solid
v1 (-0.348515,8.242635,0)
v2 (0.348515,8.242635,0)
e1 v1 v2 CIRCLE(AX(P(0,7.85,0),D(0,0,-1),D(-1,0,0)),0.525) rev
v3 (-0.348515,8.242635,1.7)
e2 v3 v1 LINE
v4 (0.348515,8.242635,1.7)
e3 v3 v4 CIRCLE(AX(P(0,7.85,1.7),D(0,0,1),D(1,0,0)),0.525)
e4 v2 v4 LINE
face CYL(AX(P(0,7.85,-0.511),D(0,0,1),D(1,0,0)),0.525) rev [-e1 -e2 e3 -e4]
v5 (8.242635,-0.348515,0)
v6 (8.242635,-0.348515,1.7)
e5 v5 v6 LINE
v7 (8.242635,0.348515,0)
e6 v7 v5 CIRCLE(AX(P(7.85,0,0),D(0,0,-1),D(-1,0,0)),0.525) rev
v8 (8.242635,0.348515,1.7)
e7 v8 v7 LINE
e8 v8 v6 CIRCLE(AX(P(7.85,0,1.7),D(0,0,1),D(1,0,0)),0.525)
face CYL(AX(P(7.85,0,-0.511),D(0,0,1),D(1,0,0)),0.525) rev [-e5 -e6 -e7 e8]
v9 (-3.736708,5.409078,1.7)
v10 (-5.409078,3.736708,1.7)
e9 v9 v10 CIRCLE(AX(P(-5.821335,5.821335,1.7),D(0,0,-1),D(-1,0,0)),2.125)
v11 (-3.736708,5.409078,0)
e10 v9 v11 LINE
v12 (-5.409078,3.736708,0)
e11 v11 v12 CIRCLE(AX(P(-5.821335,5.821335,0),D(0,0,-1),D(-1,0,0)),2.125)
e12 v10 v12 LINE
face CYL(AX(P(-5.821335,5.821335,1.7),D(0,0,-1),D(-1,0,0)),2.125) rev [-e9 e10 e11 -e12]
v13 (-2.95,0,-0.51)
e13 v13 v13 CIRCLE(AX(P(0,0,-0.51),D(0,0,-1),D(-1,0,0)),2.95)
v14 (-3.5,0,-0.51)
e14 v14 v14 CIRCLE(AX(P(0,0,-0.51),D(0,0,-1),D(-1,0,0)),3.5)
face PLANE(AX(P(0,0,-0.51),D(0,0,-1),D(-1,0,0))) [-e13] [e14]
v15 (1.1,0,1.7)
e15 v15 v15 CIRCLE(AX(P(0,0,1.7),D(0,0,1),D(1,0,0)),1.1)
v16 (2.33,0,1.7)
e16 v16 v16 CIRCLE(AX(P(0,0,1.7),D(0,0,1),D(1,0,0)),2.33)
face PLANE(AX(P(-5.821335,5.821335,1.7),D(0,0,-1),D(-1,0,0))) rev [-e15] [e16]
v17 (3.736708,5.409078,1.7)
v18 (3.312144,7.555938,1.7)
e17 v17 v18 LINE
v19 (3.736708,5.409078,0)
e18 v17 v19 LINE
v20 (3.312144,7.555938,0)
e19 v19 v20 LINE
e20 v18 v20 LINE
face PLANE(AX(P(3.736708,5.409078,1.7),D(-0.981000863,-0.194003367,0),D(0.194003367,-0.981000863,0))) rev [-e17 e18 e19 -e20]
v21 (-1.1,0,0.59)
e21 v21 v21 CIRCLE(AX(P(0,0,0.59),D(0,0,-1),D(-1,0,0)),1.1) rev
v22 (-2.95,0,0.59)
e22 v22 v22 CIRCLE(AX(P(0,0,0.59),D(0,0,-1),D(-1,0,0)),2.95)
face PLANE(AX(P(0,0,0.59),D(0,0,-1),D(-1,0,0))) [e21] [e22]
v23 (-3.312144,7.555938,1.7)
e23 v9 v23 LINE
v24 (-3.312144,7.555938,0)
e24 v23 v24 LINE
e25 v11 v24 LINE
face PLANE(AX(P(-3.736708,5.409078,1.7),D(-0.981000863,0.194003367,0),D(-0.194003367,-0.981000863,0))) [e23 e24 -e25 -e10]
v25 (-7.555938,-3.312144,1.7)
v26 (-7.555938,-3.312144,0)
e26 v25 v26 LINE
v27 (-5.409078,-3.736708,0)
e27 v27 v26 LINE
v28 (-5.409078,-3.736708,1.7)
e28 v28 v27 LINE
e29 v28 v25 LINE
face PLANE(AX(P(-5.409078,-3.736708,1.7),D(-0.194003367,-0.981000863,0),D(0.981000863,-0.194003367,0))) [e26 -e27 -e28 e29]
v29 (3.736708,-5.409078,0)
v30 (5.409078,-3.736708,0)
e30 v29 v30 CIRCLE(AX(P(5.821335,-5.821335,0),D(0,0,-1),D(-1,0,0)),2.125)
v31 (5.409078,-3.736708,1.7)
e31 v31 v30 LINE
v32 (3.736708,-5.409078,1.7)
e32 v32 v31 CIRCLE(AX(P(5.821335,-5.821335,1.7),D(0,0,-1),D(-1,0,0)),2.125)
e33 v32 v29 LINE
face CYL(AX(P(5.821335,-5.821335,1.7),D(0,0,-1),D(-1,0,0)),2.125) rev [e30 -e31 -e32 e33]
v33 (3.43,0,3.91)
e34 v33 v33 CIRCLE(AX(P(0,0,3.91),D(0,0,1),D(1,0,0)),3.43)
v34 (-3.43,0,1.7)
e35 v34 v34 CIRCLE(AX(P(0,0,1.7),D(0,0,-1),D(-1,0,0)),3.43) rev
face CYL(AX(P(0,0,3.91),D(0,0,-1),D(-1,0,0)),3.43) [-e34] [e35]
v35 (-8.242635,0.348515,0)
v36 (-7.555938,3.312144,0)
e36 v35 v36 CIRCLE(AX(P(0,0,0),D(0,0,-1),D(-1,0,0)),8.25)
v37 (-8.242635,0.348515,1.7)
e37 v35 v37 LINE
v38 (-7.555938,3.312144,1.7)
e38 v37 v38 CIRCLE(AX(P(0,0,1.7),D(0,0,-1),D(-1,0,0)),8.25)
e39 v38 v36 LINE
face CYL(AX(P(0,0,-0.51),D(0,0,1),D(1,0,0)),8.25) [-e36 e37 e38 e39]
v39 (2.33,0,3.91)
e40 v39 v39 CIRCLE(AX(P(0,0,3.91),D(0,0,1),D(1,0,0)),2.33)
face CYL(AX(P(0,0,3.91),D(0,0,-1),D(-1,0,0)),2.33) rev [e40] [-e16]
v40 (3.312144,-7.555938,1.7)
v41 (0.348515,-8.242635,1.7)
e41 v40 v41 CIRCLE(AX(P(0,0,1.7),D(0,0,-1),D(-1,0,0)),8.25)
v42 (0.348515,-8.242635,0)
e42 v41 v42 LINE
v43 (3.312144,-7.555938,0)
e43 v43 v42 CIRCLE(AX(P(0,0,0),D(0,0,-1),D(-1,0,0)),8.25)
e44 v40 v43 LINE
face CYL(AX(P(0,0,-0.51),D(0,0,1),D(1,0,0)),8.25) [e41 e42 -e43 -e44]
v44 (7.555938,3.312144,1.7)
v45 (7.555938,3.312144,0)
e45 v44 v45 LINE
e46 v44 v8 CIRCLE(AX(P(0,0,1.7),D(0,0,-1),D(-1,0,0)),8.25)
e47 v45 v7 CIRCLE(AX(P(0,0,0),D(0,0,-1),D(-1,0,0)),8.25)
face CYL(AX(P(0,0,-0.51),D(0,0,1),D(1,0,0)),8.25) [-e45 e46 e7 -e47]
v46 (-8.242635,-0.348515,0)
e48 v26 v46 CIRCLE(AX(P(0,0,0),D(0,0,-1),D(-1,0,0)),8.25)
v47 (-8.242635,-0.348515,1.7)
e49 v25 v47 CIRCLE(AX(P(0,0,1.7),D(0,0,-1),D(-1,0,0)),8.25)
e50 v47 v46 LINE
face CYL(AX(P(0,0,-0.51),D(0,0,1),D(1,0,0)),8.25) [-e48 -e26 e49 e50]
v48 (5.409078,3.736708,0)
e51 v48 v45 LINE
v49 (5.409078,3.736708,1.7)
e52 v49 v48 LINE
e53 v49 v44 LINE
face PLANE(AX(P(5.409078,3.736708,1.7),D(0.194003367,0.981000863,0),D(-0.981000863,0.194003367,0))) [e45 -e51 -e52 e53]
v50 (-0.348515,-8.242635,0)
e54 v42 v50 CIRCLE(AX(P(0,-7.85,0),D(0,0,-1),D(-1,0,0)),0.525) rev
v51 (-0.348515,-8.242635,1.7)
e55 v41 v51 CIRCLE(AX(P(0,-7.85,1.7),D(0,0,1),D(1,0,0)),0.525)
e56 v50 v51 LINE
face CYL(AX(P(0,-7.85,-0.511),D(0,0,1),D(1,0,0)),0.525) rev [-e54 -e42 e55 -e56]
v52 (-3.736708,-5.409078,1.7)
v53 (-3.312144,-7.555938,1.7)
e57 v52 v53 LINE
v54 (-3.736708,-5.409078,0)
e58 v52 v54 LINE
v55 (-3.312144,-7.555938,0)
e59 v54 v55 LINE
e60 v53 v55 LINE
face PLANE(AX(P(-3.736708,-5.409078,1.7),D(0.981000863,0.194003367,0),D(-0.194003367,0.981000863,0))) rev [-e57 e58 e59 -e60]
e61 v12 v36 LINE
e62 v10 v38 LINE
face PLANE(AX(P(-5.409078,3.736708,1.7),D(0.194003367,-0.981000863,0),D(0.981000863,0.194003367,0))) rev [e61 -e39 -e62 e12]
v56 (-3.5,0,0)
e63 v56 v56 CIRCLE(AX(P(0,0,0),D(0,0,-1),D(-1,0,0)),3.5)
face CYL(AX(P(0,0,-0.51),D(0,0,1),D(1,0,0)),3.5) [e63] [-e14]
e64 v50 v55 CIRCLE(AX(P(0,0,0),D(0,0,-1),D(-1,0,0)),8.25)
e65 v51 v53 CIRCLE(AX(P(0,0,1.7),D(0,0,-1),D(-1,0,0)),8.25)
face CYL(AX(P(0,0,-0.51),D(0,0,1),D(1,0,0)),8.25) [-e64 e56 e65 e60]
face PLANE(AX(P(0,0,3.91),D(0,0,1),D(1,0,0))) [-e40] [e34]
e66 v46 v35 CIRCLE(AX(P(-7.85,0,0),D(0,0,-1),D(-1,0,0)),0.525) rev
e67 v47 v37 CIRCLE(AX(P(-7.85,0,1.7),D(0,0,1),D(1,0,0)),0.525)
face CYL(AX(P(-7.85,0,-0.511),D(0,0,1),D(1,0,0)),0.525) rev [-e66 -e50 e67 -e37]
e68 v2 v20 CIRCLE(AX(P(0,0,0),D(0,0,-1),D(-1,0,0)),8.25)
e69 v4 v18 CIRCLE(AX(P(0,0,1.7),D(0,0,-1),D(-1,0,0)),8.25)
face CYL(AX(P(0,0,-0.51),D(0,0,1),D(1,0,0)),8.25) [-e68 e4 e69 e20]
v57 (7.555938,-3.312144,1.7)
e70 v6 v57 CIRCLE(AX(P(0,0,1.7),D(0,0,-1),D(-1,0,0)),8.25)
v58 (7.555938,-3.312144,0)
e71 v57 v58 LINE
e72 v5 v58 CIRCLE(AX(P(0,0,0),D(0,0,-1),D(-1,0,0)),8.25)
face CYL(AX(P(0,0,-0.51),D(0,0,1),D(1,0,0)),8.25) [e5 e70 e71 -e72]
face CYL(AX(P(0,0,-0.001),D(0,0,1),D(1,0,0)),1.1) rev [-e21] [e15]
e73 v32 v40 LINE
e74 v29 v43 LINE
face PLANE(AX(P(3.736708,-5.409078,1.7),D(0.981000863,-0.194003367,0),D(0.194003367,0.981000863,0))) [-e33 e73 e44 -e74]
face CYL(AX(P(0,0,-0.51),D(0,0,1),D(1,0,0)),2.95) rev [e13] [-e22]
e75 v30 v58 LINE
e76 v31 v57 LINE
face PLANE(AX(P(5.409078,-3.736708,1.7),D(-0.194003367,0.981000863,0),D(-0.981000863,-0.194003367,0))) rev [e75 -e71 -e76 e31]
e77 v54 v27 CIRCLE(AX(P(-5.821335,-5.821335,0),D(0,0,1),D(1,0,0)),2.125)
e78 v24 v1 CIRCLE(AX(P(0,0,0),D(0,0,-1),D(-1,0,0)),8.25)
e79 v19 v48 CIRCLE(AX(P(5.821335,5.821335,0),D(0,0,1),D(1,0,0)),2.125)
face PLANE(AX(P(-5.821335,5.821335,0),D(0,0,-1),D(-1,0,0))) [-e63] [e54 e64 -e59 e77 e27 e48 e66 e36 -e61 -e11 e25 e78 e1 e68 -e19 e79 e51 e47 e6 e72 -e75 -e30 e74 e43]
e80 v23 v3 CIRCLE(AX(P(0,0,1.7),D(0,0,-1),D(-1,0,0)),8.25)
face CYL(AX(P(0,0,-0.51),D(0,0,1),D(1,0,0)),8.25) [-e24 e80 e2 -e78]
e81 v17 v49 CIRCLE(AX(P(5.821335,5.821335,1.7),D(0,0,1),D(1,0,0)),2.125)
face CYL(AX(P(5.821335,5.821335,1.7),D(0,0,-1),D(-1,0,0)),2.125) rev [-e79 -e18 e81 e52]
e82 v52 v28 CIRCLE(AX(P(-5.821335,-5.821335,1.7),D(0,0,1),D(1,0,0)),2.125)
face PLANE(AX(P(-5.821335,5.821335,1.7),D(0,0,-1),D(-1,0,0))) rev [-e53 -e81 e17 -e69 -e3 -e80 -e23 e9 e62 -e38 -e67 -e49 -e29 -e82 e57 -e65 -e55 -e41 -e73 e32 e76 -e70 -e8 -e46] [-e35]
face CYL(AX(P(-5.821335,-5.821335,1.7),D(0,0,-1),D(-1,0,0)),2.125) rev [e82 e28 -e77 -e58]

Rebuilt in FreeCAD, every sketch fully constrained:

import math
import FreeCAD as App
import Part
import Sketcher
Q = App.Units.Quantity

doc = App.newDocument("Part")
body = doc.addObject("PartDesign::Body", "Body")

sketch1 = doc.addObject("Sketcher::SketchObject", "Sketch")
body.addObject(sketch1)
sketch1.AttachmentSupport = (doc.XY_Plane, [""])
sketch1.MapMode = "FlatFace"
sketch1.addGeometry([
    Part.LineSegment(App.Vector(13.762286, 2.084772, 0), App.Vector(5.409078, 3.736708, 0)),
    Part.ArcOfCircle(Part.Circle(App.Vector(5.821335, 5.821335, 0), App.Vector(0, 0, 1), 2.125), math.radians(-168.813491), math.radians(-101.186509)),
    Part.LineSegment(App.Vector(3.736708, 5.409078, 0), App.Vector(2.084772, 13.762286, 0)),
    Part.ArcOfCircle(Part.Circle(App.Vector(0, 13.35, 0), App.Vector(0, 0, 1), 2.125148), math.radians(11.186509), math.radians(168.813491)),
    Part.LineSegment(App.Vector(-2.084772, 13.762286, 0), App.Vector(-3.736708, 5.409078, 0)),
    Part.ArcOfCircle(Part.Circle(App.Vector(-5.821335, 5.821335, 0), App.Vector(0, 0, 1), 2.125), math.radians(-78.813491), math.radians(-11.186509)),
    Part.LineSegment(App.Vector(-5.409078, 3.736708, 0), App.Vector(-13.762286, 2.084772, 0)),
    Part.ArcOfCircle(Part.Circle(App.Vector(-13.35, 0, 0), App.Vector(0, 0, 1), 2.125148), math.radians(101.186509), math.radians(258.813491)),
    Part.LineSegment(App.Vector(-13.762286, -2.084772, 0), App.Vector(-5.409078, -3.736708, 0)),
    Part.ArcOfCircle(Part.Circle(App.Vector(-5.821335, -5.821335, 0), App.Vector(0, 0, 1), 2.125), math.radians(11.186509), math.radians(78.813491)),
    Part.LineSegment(App.Vector(-3.736708, -5.409078, 0), App.Vector(-2.084772, -13.762286, 0)),
    Part.ArcOfCircle(Part.Circle(App.Vector(0, -13.35, 0), App.Vector(0, 0, 1), 2.125148), math.radians(-168.813491), math.radians(-11.186509)),
    Part.LineSegment(App.Vector(2.084772, -13.762286, 0), App.Vector(3.736708, -5.409078, 0)),
    Part.ArcOfCircle(Part.Circle(App.Vector(5.821335, -5.821335, 0), App.Vector(0, 0, 1), 2.125), math.radians(101.186509), math.radians(168.813491)),
    Part.LineSegment(App.Vector(5.409078, -3.736708, 0), App.Vector(13.762286, -2.084772, 0)),
    Part.ArcOfCircle(Part.Circle(App.Vector(13.35, 0, 0), App.Vector(0, 0, 1), 2.125148), math.radians(-78.813491), math.radians(78.813491)),
], False)
sketch1.addConstraint([
    Sketcher.Constraint("Tangent", 0, 2, 1, 2),
    Sketcher.Constraint("Tangent", 1, 1, 2, 1),
    Sketcher.Constraint("Tangent", 2, 2, 3, 1),
    Sketcher.Constraint("Tangent", 3, 2, 4, 1),
    Sketcher.Constraint("Tangent", 4, 2, 5, 2),
    Sketcher.Constraint("Tangent", 5, 1, 6, 1),
    Sketcher.Constraint("Tangent", 6, 2, 7, 1),
    Sketcher.Constraint("Tangent", 7, 2, 8, 1),
    Sketcher.Constraint("Tangent", 8, 2, 9, 2),
    Sketcher.Constraint("Tangent", 9, 1, 10, 1),
    Sketcher.Constraint("Tangent", 10, 2, 11, 1),
    Sketcher.Constraint("Tangent", 11, 2, 12, 1),
    Sketcher.Constraint("Tangent", 12, 2, 13, 2),
    Sketcher.Constraint("Tangent", 13, 1, 14, 1),
    Sketcher.Constraint("Tangent", 14, 2, 15, 1),
    Sketcher.Constraint("Tangent", 15, 2, 0, 1),
    Sketcher.Constraint("Equal", 1, 5),
    Sketcher.Constraint("Equal", 3, 7),
    Sketcher.Constraint("Equal", 5, 9),
    Sketcher.Constraint("Equal", 7, 11),
    Sketcher.Constraint("Equal", 9, 13),
    Sketcher.Constraint("Equal", 11, 15),
    Sketcher.Constraint("Symmetric", 1, 3, 9, 3, -1, 1),
    Sketcher.Constraint("Symmetric", 3, 3, 11, 3, -1, 1),
    Sketcher.Constraint("Symmetric", 5, 3, 13, 3, -1, 1),
    Sketcher.Constraint("Symmetric", 7, 3, 15, 3, -1, 1),
    Sketcher.Constraint("Symmetric", 1, 3, 5, 3, -2),
    Sketcher.Constraint("PointOnObject", 3, 3, -2),
    Sketcher.Constraint("PointOnObject", 7, 3, -1),
    Sketcher.Constraint("Perpendicular", 0, 4),
    Sketcher.Constraint("Equal", 0, 2),
    Sketcher.Constraint("Radius", 1, Q("2.125 mm")),
    Sketcher.Constraint("DistanceY", 11, 3, 3, 3, Q("26.7 mm")),
    Sketcher.Constraint("Radius", 3, Q("2.125148 mm")),
    Sketcher.Constraint("DistanceY", -1, 1, 0, 2, Q("3.736708 mm")),
])
pad1 = doc.addObject("PartDesign::Pad", "Pad")
body.addObject(pad1)
pad1.Profile = sketch1
pad1.Length = 1.7

sketch2 = doc.addObject("Sketcher::SketchObject", "Sketch001")
body.addObject(sketch2)
sketch2.AttachmentSupport = (doc.XY_Plane, [""])
sketch2.MapMode = "FlatFace"
sketch2.AttachmentOffset = App.Placement(App.Vector(0, 0, 1.7), App.Rotation())
sketch2.addGeometry(Part.Circle(App.Vector(0, 0, 0), App.Vector(0, 0, 1), 1.1), False)
sketch2.addConstraint([
    Sketcher.Constraint("Coincident", 0, 3, -1, 1),
    Sketcher.Constraint("Diameter", 0, Q("2.2 mm")),
])
pocket1 = doc.addObject("PartDesign::Pocket", "Pocket")
body.addObject(pocket1)
pocket1.Profile = sketch2
pocket1.Type = "UpToFirst"

sketch3 = doc.addObject("Sketcher::SketchObject", "Sketch002")
body.addObject(sketch3)
sketch3.AttachmentSupport = (doc.XY_Plane, [""])
sketch3.MapMode = "FlatFace"
sketch3.AttachmentOffset = App.Placement(App.Vector(0, 0, 1.7), App.Rotation())
sketch3.addGeometry([
    Part.Circle(App.Vector(0, 0, 0), App.Vector(0, 0, 1), 3.43),
    Part.Circle(App.Vector(0, 0, 0), App.Vector(0, 0, 1), 2.33),
], False)
sketch3.addConstraint([
    Sketcher.Constraint("Coincident", 0, 3, -1, 1),
    Sketcher.Constraint("Coincident", 1, 3, -1, 1),
    Sketcher.Constraint("Diameter", 0, Q("6.86 mm")),
    Sketcher.Constraint("Diameter", 1, Q("4.66 mm")),
])
pad2 = doc.addObject("PartDesign::Pad", "Pad001")
body.addObject(pad2)
pad2.Profile = sketch3
pad2.Length = 2.21

sketch4 = doc.addObject("Sketcher::SketchObject", "Sketch003")
body.addObject(sketch4)
sketch4.AttachmentSupport = (doc.XY_Plane, [""])
sketch4.MapMode = "FlatFace"
sketch4.addGeometry([
    Part.Circle(App.Vector(0, 0, 0), App.Vector(0, 0, 1), 3.5),
    Part.Circle(App.Vector(0, 0, 0), App.Vector(0, 0, 1), 2.95),
], False)
sketch4.addConstraint([
    Sketcher.Constraint("Coincident", 0, 3, -1, 1),
    Sketcher.Constraint("Coincident", 1, 3, -1, 1),
    Sketcher.Constraint("Diameter", 0, Q("7 mm")),
    Sketcher.Constraint("Diameter", 1, Q("5.9 mm")),
])
pad3 = doc.addObject("PartDesign::Pad", "Pad002")
body.addObject(pad3)
pad3.Profile = sketch4
pad3.Length = 0.51
pad3.Reversed = True

sketch5 = doc.addObject("Sketcher::SketchObject", "Sketch004")
body.addObject(sketch5)
sketch5.AttachmentSupport = (doc.XY_Plane, [""])
sketch5.MapMode = "FlatFace"
sketch5.AttachmentOffset = App.Placement(App.Vector(0, 0, -0.51), App.Rotation())
sketch5.addGeometry(Part.Circle(App.Vector(0, 0, 0), App.Vector(0, 0, 1), 2.95), False)
sketch5.addConstraint([
    Sketcher.Constraint("Coincident", 0, 3, -1, 1),
    Sketcher.Constraint("Diameter", 0, Q("5.9 mm")),
])
pocket2 = doc.addObject("PartDesign::Pocket", "Pocket001")
body.addObject(pocket2)
pocket2.Profile = sketch5
pocket2.Length = 1.1
pocket2.Reversed = True

sketch6 = doc.addObject("Sketcher::SketchObject", "Sketch005")
body.addObject(sketch6)
sketch6.AttachmentSupport = (doc.XY_Plane, [""])
sketch6.MapMode = "FlatFace"
sketch6.AttachmentOffset = App.Placement(App.Vector(0, 0, 1.7), App.Rotation())
sketch6.addGeometry(Part.Circle(App.Vector(0, 13.35, 0), App.Vector(0, 0, 1), 0.525), False)
sketch6.addConstraint([
    Sketcher.Constraint("PointOnObject", 0, 3, -2),
    Sketcher.Constraint("Diameter", 0, Q("1.05 mm")),
    Sketcher.Constraint("DistanceY", -1, 1, 0, 3, Q("13.35 mm")),
])
pocket3 = doc.addObject("PartDesign::Pocket", "Pocket002")
body.addObject(pocket3)
pocket3.Profile = sketch6
pocket3.Type = "UpToFirst"

sketch7 = doc.addObject("Sketcher::SketchObject", "Sketch006")
body.addObject(sketch7)
sketch7.AttachmentSupport = (doc.XY_Plane, [""])
sketch7.MapMode = "FlatFace"
sketch7.AttachmentOffset = App.Placement(App.Vector(0, 0, 1.7), App.Rotation())
sketch7.addGeometry(Part.Circle(App.Vector(0, 10.6, 0), App.Vector(0, 0, 1), 0.525), False)
sketch7.addConstraint([
    Sketcher.Constraint("PointOnObject", 0, 3, -2),
    Sketcher.Constraint("Diameter", 0, Q("1.05 mm")),
    Sketcher.Constraint("DistanceY", -1, 1, 0, 3, Q("10.6 mm")),
])
pocket4 = doc.addObject("PartDesign::Pocket", "Pocket003")
body.addObject(pocket4)
pocket4.Profile = sketch7
pocket4.Type = "UpToFirst"

sketch8 = doc.addObject("Sketcher::SketchObject", "Sketch007")
body.addObject(sketch8)
sketch8.AttachmentSupport = (doc.XY_Plane, [""])
sketch8.MapMode = "FlatFace"
sketch8.AttachmentOffset = App.Placement(App.Vector(0, 0, 1.7), App.Rotation())
sketch8.addGeometry(Part.Circle(App.Vector(0, 7.85, 0), App.Vector(0, 0, 1), 0.525), False)
sketch8.addConstraint([
    Sketcher.Constraint("PointOnObject", 0, 3, -2),
    Sketcher.Constraint("Diameter", 0, Q("1.05 mm")),
    Sketcher.Constraint("DistanceY", -1, 1, 0, 3, Q("7.85 mm")),
])
pocket5 = doc.addObject("PartDesign::Pocket", "Pocket004")
body.addObject(pocket5)
pocket5.Profile = sketch8
pocket5.Type = "UpToFirst"

sketch9 = doc.addObject("Sketcher::SketchObject", "Sketch008")
body.addObject(sketch9)
sketch9.AttachmentSupport = (doc.XY_Plane, [""])
sketch9.MapMode = "FlatFace"
sketch9.AttachmentOffset = App.Placement(App.Vector(0, 0, 1.7), App.Rotation())
sketch9.addGeometry(Part.Circle(App.Vector(13.35, 0, 0), App.Vector(0, 0, 1), 0.525), False)
sketch9.addConstraint([
    Sketcher.Constraint("PointOnObject", 0, 3, -1),
    Sketcher.Constraint("Diameter", 0, Q("1.05 mm")),
    Sketcher.Constraint("DistanceX", -1, 1, 0, 3, Q("13.35 mm")),
])
pocket6 = doc.addObject("PartDesign::Pocket", "Pocket005")
body.addObject(pocket6)
pocket6.Profile = sketch9
pocket6.Type = "UpToFirst"

sketch10 = doc.addObject("Sketcher::SketchObject", "Sketch009")
body.addObject(sketch10)
sketch10.AttachmentSupport = (doc.XY_Plane, [""])
sketch10.MapMode = "FlatFace"
sketch10.AttachmentOffset = App.Placement(App.Vector(0, 0, 1.7), App.Rotation())
sketch10.addGeometry(Part.Circle(App.Vector(10.6, 0, 0), App.Vector(0, 0, 1), 0.525), False)
sketch10.addConstraint([
    Sketcher.Constraint("PointOnObject", 0, 3, -1),
    Sketcher.Constraint("Diameter", 0, Q("1.05 mm")),
    Sketcher.Constraint("DistanceX", -1, 1, 0, 3, Q("10.6 mm")),
])
pocket7 = doc.addObject("PartDesign::Pocket", "Pocket006")
body.addObject(pocket7)
pocket7.Profile = sketch10
pocket7.Type = "UpToFirst"

sketch11 = doc.addObject("Sketcher::SketchObject", "Sketch010")
body.addObject(sketch11)
sketch11.AttachmentSupport = (doc.XY_Plane, [""])
sketch11.MapMode = "FlatFace"
sketch11.AttachmentOffset = App.Placement(App.Vector(0, 0, 1.7), App.Rotation())
sketch11.addGeometry(Part.Circle(App.Vector(7.85, 0, 0), App.Vector(0, 0, 1), 0.525), False)
sketch11.addConstraint([
    Sketcher.Constraint("PointOnObject", 0, 3, -1),
    Sketcher.Constraint("Diameter", 0, Q("1.05 mm")),
    Sketcher.Constraint("DistanceX", -1, 1, 0, 3, Q("7.85 mm")),
])
pocket8 = doc.addObject("PartDesign::Pocket", "Pocket007")
body.addObject(pocket8)
pocket8.Profile = sketch11
pocket8.Type = "UpToFirst"

sketch12 = doc.addObject("Sketcher::SketchObject", "Sketch011")
body.addObject(sketch12)
sketch12.AttachmentSupport = (doc.XY_Plane, [""])
sketch12.MapMode = "FlatFace"
sketch12.AttachmentOffset = App.Placement(App.Vector(0, 0, 1.7), App.Rotation())
sketch12.addGeometry(Part.Circle(App.Vector(0, -13.35, 0), App.Vector(0, 0, 1), 0.525), False)
sketch12.addConstraint([
    Sketcher.Constraint("PointOnObject", 0, 3, -2),
    Sketcher.Constraint("Diameter", 0, Q("1.05 mm")),
    Sketcher.Constraint("DistanceY", 0, 3, -1, 1, Q("13.35 mm")),
])
pocket9 = doc.addObject("PartDesign::Pocket", "Pocket008")
body.addObject(pocket9)
pocket9.Profile = sketch12
pocket9.Type = "UpToFirst"

sketch13 = doc.addObject("Sketcher::SketchObject", "Sketch012")
body.addObject(sketch13)
sketch13.AttachmentSupport = (doc.XY_Plane, [""])
sketch13.MapMode = "FlatFace"
sketch13.AttachmentOffset = App.Placement(App.Vector(0, 0, 1.7), App.Rotation())
sketch13.addGeometry(Part.Circle(App.Vector(0, -10.6, 0), App.Vector(0, 0, 1), 0.525), False)
sketch13.addConstraint([
    Sketcher.Constraint("PointOnObject", 0, 3, -2),
    Sketcher.Constraint("Diameter", 0, Q("1.05 mm")),
    Sketcher.Constraint("DistanceY", 0, 3, -1, 1, Q("10.6 mm")),
])
pocket10 = doc.addObject("PartDesign::Pocket", "Pocket009")
body.addObject(pocket10)
pocket10.Profile = sketch13
pocket10.Type = "UpToFirst"

sketch14 = doc.addObject("Sketcher::SketchObject", "Sketch013")
body.addObject(sketch14)
sketch14.AttachmentSupport = (doc.XY_Plane, [""])
sketch14.MapMode = "FlatFace"
sketch14.AttachmentOffset = App.Placement(App.Vector(0, 0, 1.7), App.Rotation())
sketch14.addGeometry(Part.Circle(App.Vector(0, -7.85, 0), App.Vector(0, 0, 1), 0.525), False)
sketch14.addConstraint([
    Sketcher.Constraint("PointOnObject", 0, 3, -2),
    Sketcher.Constraint("Diameter", 0, Q("1.05 mm")),
    Sketcher.Constraint("DistanceY", 0, 3, -1, 1, Q("7.85 mm")),
])
pocket11 = doc.addObject("PartDesign::Pocket", "Pocket010")
body.addObject(pocket11)
pocket11.Profile = sketch14
pocket11.Type = "UpToFirst"

sketch15 = doc.addObject("Sketcher::SketchObject", "Sketch014")
body.addObject(sketch15)
sketch15.AttachmentSupport = (doc.XY_Plane, [""])
sketch15.MapMode = "FlatFace"
sketch15.AttachmentOffset = App.Placement(App.Vector(0, 0, 1.7), App.Rotation())
sketch15.addGeometry(Part.Circle(App.Vector(-13.35, 0, 0), App.Vector(0, 0, 1), 0.525), False)
sketch15.addConstraint([
    Sketcher.Constraint("PointOnObject", 0, 3, -1),
    Sketcher.Constraint("Diameter", 0, Q("1.05 mm")),
    Sketcher.Constraint("DistanceX", 0, 3, -1, 1, Q("13.35 mm")),
])
pocket12 = doc.addObject("PartDesign::Pocket", "Pocket011")
body.addObject(pocket12)
pocket12.Profile = sketch15
pocket12.Type = "UpToFirst"

sketch16 = doc.addObject("Sketcher::SketchObject", "Sketch015")
body.addObject(sketch16)
sketch16.AttachmentSupport = (doc.XY_Plane, [""])
sketch16.MapMode = "FlatFace"
sketch16.AttachmentOffset = App.Placement(App.Vector(0, 0, 1.7), App.Rotation())
sketch16.addGeometry(Part.Circle(App.Vector(-10.6, 0, 0), App.Vector(0, 0, 1), 0.525), False)
sketch16.addConstraint([
    Sketcher.Constraint("PointOnObject", 0, 3, -1),
    Sketcher.Constraint("Diameter", 0, Q("1.05 mm")),
    Sketcher.Constraint("DistanceX", 0, 3, -1, 1, Q("10.6 mm")),
])
pocket13 = doc.addObject("PartDesign::Pocket", "Pocket012")
body.addObject(pocket13)
pocket13.Profile = sketch16
pocket13.Type = "UpToFirst"

sketch17 = doc.addObject("Sketcher::SketchObject", "Sketch016")
body.addObject(sketch17)
sketch17.AttachmentSupport = (doc.XY_Plane, [""])
sketch17.MapMode = "FlatFace"
sketch17.AttachmentOffset = App.Placement(App.Vector(0, 0, 1.7), App.Rotation())
sketch17.addGeometry(Part.Circle(App.Vector(-7.85, 0, 0), App.Vector(0, 0, 1), 0.525), False)
sketch17.addConstraint([
    Sketcher.Constraint("PointOnObject", 0, 3, -1),
    Sketcher.Constraint("Diameter", 0, Q("1.05 mm")),
    Sketcher.Constraint("DistanceX", 0, 3, -1, 1, Q("7.85 mm")),
])
pocket14 = doc.addObject("PartDesign::Pocket", "Pocket013")
body.addObject(pocket14)
pocket14.Profile = sketch17
pocket14.Type = "UpToFirst"

sketch18 = doc.addObject("Sketcher::SketchObject", "Sketch017")
body.addObject(sketch18)
sketch18.AttachmentSupport = (doc.XY_Plane, [""])
sketch18.MapMode = "FlatFace"
sketch18.AttachmentOffset = App.Placement(App.Vector(0, 0, 1.7), App.Rotation())
sketch18.addGeometry([
    Part.Circle(App.Vector(0, 0, 0), App.Vector(0, 0, 1), 18.883042),
    Part.Circle(App.Vector(0, 0, 0), App.Vector(0, 0, 1), 8.25),
], False)
sketch18.addConstraint([
    Sketcher.Constraint("Coincident", 0, 3, -1, 1),
    Sketcher.Constraint("Coincident", 1, 3, -1, 1),
    Sketcher.Constraint("Diameter", 1, Q("16.5 mm")),
    Sketcher.Constraint("Diameter", 0, Q("37.766084 mm")),
])
pocket15 = doc.addObject("PartDesign::Pocket", "Pocket014")
body.addObject(pocket15)
pocket15.Profile = sketch18
pocket15.Type = "ThroughAll"
pocket15.Midplane = True

doc.recompute()
